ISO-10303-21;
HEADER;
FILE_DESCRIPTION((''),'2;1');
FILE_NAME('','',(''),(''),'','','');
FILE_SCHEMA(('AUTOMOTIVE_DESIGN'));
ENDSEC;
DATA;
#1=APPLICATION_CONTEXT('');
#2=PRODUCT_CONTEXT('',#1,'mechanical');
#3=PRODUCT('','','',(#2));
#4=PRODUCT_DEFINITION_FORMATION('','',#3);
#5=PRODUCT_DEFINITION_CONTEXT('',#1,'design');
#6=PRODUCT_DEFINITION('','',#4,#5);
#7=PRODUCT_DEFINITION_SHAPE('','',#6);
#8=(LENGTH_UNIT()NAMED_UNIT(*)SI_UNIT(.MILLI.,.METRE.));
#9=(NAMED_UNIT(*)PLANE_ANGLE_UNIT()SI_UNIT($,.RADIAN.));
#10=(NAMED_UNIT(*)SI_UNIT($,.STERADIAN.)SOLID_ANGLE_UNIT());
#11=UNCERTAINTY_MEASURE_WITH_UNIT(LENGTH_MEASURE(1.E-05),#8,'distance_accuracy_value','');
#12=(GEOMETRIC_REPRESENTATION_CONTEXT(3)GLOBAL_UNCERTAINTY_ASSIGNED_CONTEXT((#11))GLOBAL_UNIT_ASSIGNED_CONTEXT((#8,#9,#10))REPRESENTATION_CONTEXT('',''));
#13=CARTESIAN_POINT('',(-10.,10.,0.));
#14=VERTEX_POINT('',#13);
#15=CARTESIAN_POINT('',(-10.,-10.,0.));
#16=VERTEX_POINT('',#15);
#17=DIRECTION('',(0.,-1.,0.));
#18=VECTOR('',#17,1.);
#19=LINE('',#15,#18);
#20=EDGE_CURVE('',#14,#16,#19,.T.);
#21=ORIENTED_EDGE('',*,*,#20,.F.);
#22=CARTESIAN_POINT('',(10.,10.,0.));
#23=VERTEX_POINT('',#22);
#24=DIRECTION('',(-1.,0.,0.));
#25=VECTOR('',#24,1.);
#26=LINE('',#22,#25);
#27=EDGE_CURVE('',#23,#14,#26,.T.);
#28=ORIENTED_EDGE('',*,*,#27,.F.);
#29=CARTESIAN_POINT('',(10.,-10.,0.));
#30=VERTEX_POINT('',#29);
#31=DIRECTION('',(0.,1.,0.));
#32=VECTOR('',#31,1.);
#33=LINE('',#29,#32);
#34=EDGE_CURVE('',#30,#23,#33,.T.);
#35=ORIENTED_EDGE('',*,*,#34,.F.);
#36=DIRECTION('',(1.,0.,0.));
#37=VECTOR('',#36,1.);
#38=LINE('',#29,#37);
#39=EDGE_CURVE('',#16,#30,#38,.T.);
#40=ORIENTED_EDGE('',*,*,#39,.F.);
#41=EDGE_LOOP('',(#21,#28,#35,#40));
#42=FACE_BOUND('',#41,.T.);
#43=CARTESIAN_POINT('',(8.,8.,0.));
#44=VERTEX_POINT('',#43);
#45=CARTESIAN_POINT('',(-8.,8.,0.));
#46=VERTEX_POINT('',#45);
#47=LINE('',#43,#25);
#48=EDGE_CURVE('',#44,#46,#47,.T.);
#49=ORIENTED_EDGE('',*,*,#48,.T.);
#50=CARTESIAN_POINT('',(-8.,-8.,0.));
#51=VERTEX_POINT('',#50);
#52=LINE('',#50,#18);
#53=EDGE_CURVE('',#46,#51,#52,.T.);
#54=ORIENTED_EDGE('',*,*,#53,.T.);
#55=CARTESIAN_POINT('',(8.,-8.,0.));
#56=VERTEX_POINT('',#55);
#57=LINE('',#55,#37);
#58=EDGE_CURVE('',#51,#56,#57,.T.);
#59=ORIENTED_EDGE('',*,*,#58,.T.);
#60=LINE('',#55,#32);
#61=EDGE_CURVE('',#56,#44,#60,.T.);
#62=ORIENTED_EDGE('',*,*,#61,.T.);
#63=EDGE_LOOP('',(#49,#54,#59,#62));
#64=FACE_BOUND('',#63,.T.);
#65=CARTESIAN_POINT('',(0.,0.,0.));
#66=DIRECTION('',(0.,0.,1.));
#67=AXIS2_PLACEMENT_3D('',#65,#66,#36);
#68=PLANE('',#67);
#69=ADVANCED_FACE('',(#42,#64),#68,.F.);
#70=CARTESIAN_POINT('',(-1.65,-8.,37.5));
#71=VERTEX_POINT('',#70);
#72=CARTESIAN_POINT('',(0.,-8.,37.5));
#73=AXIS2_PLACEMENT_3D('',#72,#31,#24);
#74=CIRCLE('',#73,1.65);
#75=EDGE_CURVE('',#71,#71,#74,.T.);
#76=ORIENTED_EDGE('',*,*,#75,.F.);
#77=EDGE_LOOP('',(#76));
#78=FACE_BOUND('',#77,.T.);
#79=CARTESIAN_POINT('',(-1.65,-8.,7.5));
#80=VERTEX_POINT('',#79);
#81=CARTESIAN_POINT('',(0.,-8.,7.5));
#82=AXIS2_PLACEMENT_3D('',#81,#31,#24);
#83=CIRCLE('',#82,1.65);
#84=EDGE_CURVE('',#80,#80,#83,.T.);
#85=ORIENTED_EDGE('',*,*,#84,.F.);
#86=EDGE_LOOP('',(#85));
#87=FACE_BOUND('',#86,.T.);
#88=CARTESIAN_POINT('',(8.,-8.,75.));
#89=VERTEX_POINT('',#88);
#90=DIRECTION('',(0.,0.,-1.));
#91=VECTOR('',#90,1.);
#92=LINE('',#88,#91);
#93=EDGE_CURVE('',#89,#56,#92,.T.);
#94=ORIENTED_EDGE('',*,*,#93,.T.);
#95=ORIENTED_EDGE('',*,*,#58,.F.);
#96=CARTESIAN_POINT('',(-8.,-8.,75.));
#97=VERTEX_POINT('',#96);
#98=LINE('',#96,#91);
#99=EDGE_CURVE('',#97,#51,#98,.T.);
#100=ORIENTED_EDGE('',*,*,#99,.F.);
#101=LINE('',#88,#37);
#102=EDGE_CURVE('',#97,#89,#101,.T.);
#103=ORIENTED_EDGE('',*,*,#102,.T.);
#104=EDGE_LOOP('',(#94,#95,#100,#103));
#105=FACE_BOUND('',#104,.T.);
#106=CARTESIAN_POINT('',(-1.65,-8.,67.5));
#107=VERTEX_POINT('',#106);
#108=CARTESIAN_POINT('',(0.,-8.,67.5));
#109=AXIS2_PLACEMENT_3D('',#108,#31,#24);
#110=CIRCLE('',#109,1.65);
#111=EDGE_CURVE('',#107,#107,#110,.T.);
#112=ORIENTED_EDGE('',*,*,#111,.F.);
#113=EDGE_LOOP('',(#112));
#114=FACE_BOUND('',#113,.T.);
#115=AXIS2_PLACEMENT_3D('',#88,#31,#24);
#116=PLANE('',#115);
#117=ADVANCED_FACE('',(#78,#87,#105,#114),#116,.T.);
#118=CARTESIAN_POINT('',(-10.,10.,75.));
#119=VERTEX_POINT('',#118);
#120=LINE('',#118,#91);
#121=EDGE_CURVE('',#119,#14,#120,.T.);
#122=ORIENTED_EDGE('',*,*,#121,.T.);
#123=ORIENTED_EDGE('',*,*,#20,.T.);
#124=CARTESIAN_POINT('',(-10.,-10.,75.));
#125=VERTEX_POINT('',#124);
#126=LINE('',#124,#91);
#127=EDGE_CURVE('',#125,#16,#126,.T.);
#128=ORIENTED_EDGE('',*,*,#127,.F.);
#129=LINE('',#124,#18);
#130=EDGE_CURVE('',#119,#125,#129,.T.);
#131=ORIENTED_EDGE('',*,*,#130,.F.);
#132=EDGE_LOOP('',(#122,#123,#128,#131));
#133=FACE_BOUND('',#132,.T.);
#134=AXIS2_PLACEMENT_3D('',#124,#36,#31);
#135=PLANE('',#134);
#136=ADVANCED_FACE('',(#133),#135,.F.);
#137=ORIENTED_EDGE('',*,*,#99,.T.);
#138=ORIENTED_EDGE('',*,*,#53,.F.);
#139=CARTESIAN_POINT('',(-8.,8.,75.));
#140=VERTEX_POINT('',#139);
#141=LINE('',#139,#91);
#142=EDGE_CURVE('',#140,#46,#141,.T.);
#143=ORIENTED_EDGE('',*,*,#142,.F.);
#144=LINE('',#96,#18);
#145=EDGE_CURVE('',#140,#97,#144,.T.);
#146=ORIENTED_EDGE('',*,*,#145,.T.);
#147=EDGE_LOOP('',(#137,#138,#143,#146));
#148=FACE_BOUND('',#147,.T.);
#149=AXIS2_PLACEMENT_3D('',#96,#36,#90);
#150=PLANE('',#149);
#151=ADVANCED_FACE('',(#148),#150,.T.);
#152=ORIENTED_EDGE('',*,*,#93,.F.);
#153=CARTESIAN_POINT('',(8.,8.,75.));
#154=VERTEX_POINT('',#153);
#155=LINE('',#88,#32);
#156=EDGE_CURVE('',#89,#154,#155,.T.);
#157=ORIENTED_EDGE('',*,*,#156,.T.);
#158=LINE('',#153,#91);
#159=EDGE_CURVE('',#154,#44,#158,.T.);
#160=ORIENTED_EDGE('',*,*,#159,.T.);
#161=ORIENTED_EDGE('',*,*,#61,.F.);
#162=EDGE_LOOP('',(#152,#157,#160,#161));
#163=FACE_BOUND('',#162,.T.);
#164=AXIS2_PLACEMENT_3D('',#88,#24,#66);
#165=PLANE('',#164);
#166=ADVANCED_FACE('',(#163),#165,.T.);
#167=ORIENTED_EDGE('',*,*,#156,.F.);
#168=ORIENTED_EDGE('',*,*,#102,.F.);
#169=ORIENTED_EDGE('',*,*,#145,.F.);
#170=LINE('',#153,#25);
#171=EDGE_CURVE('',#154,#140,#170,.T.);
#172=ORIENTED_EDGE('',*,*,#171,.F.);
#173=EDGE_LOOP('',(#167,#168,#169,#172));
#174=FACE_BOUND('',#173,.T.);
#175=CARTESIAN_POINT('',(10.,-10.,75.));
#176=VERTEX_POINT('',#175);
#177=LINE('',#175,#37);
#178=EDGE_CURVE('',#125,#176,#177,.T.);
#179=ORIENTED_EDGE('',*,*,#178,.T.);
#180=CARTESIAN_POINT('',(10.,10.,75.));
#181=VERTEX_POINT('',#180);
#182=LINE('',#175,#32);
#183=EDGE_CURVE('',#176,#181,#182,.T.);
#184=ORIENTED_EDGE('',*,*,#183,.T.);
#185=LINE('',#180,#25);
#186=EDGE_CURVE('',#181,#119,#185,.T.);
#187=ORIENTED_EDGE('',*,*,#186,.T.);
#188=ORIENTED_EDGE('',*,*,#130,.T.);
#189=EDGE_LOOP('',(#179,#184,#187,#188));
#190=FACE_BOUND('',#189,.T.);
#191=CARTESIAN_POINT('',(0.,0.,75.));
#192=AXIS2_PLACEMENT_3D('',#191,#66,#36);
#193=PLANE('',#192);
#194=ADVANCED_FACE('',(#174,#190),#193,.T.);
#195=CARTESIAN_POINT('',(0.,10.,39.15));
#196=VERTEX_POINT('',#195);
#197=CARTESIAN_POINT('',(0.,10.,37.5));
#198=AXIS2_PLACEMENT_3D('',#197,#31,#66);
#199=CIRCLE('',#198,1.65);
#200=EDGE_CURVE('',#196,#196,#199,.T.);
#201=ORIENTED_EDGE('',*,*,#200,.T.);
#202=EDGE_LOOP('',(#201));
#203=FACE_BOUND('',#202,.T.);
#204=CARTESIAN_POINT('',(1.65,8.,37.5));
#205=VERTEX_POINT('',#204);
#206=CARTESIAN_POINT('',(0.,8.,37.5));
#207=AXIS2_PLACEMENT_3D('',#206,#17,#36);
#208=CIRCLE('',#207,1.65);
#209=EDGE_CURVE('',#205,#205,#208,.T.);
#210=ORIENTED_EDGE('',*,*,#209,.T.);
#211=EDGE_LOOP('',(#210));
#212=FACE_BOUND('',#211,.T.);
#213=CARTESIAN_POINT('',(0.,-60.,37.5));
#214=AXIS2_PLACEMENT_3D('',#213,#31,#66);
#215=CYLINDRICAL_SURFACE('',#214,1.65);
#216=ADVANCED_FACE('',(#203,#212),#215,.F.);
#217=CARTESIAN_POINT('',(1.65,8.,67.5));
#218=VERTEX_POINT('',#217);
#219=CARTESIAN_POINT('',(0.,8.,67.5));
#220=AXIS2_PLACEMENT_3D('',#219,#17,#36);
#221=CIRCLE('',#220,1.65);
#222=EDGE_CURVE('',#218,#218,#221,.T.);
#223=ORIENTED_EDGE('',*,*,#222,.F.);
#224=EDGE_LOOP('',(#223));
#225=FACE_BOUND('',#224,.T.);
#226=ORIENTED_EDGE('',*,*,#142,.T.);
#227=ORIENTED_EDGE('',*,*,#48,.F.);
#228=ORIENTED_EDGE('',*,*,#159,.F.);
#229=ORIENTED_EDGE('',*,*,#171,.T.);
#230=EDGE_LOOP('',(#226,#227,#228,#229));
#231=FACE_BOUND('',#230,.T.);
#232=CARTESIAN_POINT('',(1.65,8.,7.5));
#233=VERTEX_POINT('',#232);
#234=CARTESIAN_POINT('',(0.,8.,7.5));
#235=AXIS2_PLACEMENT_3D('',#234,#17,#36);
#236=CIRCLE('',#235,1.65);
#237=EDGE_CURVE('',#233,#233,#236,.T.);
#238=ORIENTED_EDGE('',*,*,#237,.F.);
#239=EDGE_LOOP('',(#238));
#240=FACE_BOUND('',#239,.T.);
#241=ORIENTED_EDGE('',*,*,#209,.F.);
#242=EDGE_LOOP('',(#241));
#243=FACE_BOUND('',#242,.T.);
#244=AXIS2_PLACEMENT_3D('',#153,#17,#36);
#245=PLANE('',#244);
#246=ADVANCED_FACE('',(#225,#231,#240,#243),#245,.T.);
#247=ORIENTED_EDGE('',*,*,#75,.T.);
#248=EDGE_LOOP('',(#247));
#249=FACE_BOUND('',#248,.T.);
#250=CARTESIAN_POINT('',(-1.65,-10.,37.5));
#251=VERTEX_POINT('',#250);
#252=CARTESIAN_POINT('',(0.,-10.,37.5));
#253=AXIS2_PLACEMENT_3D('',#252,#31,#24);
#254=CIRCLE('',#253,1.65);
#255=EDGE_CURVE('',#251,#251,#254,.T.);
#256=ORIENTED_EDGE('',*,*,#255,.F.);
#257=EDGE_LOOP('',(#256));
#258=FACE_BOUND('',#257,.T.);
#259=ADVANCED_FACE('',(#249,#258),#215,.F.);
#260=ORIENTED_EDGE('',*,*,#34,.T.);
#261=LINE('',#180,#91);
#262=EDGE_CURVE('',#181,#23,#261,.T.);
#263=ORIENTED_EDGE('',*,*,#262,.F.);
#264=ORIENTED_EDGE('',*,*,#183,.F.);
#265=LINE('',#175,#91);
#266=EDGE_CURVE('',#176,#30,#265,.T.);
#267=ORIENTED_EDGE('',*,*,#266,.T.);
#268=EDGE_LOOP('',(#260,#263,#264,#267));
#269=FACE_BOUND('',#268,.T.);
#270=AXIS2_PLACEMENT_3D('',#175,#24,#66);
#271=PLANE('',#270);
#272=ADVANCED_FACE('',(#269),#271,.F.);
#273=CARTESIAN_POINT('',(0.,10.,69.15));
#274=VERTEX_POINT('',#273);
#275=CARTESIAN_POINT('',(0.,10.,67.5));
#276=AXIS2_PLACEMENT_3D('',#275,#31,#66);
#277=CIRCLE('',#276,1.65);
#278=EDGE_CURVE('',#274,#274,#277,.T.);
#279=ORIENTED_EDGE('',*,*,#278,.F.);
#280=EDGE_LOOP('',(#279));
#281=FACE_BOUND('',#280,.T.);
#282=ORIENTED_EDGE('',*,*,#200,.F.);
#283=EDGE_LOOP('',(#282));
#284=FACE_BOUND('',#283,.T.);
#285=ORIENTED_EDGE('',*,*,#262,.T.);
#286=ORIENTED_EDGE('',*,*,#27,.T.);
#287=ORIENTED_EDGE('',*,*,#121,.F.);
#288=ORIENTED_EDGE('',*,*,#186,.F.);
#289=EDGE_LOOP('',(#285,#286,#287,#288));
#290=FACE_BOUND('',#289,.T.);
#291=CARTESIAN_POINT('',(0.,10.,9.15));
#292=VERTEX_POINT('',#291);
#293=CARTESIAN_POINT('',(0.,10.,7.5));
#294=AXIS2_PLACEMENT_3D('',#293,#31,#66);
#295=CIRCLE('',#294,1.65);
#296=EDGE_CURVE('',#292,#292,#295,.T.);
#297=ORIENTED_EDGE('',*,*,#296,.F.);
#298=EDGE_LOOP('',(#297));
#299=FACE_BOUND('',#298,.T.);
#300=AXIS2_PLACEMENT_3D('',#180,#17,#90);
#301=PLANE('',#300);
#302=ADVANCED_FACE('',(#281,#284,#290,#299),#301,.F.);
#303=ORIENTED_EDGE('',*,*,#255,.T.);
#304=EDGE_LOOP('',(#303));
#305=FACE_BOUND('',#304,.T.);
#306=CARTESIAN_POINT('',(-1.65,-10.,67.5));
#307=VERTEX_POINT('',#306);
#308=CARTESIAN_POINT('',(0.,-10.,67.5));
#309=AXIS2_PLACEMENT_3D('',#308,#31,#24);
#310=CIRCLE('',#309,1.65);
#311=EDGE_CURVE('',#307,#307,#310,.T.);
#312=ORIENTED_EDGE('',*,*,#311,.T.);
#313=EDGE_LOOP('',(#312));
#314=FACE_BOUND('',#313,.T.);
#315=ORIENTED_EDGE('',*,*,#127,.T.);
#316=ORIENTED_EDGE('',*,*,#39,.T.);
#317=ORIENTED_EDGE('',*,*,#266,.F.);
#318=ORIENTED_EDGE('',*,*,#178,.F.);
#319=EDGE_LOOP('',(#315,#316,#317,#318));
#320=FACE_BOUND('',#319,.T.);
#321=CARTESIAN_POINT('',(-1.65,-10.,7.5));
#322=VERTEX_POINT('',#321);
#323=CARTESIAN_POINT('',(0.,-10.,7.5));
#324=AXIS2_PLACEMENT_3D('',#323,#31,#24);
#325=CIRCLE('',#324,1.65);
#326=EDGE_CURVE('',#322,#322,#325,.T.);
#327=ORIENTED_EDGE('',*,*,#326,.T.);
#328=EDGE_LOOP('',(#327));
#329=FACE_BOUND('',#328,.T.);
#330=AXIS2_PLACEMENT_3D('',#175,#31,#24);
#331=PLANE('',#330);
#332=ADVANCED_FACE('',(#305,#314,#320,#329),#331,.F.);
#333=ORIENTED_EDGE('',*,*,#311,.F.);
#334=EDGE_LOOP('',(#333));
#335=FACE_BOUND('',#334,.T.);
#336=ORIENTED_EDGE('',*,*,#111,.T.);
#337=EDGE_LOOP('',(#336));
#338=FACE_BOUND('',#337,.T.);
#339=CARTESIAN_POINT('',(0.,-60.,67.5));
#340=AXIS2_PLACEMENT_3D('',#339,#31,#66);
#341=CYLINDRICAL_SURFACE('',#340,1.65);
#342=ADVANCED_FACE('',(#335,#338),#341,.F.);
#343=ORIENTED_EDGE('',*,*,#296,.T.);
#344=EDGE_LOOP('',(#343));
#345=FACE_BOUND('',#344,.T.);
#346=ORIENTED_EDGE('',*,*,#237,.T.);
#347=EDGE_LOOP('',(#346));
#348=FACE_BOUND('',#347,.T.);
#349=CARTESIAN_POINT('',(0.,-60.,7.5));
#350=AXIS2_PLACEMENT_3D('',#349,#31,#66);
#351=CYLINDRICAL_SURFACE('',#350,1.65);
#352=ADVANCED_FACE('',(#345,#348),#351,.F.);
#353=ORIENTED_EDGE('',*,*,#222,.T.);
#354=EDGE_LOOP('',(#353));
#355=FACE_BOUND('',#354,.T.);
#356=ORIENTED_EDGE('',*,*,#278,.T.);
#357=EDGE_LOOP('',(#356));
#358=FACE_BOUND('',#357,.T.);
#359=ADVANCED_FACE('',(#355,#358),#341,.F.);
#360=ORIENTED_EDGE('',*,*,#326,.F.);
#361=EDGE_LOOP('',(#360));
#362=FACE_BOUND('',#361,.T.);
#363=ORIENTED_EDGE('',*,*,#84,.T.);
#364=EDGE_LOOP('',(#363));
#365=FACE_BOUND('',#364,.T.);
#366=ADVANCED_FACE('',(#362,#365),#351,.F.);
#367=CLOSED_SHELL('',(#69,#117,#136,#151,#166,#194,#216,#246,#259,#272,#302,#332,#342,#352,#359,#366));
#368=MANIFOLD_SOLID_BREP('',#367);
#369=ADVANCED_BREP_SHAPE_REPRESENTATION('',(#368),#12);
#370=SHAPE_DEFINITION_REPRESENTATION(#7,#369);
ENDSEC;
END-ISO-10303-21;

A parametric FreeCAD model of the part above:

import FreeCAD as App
import Part
import Sketcher
from FreeCAD import Vector

doc = App.newDocument("Part")
params = doc.addObject("Spreadsheet::Sheet", "Params")
for row, (alias, value) in enumerate([
    ("sketch1_width", "20 mm"),
    ("sketch1_width2", "16 mm"),
    ("pad1_length", "75 mm"),
    ("sketch2_diameter", "3.3 mm"),
    ("pocket1_length", "70 mm"),
], start=1):
    params.set(f"A{row}", alias)
    params.set(f"B{row}", "=" + value)
    params.setAlias(f"B{row}", alias)

body = doc.addObject("PartDesign::Body", "Body")

# Sketch on XY plane
sketch1 = body.newObject("Sketcher::SketchObject", "Sketch")
sketch1.AttachmentSupport = (doc.getObject("XY_Plane"), [""])
sketch1.MapMode = "FlatFace"
sketch1.addGeometry([
    Part.LineSegment(Vector(-10, 10, 0), Vector(-10, -10, 0)),  # 0
    Part.LineSegment(Vector(-10, -10, 0), Vector(10, -10, 0)),  # 1
    Part.LineSegment(Vector(10, -10, 0), Vector(10, 10, 0)),  # 2
    Part.LineSegment(Vector(10, 10, 0), Vector(-10, 10, 0)),  # 3
    Part.LineSegment(Vector(8, -8, 0), Vector(-8, -8, 0)),  # 4
    Part.LineSegment(Vector(-8, -8, 0), Vector(-8, 8, 0)),  # 5
    Part.LineSegment(Vector(-8, 8, 0), Vector(8, 8, 0)),  # 6
    Part.LineSegment(Vector(8, 8, 0), Vector(8, -8, 0)),  # 7
], False)
sketch1.addConstraint([
    Sketcher.Constraint("Coincident", 0, 2, 1, 1),
    Sketcher.Constraint("Coincident", 1, 2, 2, 1),
    Sketcher.Constraint("Coincident", 2, 2, 3, 1),
    Sketcher.Constraint("Coincident", 3, 2, 0, 1),
    Sketcher.Constraint("Coincident", 4, 2, 5, 1),
    Sketcher.Constraint("Coincident", 5, 2, 6, 1),
    Sketcher.Constraint("Coincident", 6, 2, 7, 1),
    Sketcher.Constraint("Coincident", 7, 2, 4, 1),
    Sketcher.Constraint("Vertical", 0),
    Sketcher.Constraint("Horizontal", 1),
    Sketcher.Constraint("Vertical", 2),
    Sketcher.Constraint("Horizontal", 3),
    Sketcher.Constraint("Horizontal", 4),
    Sketcher.Constraint("Vertical", 5),
    Sketcher.Constraint("Horizontal", 6),
    Sketcher.Constraint("Vertical", 7),
    Sketcher.Constraint("Symmetric", 0, 2, 2, 2, -1, 1),
    Sketcher.Constraint("Symmetric", 4, 2, 6, 2, -1, 1),
    Sketcher.Constraint("Equal", 3, 0),
    Sketcher.Constraint("Equal", 6, 5),
    Sketcher.Constraint("DistanceX", 1, 1, 1, 2, 20.0),
    Sketcher.Constraint("DistanceX", 4, 2, 4, 1, 16.0),
])
sketch1.setExpression("Constraints[20]", "Params.sketch1_width")
sketch1.setExpression("Constraints[21]", "Params.sketch1_width2")
pad1 = body.newObject("PartDesign::Pad", "Pad")
pad1.Profile = sketch1
pad1.setExpression("Length", "Params.pad1_length")

# Sketch on XZ plane
sketch2 = body.newObject("Sketcher::SketchObject", "Sketch001")
sketch2.AttachmentSupport = (doc.getObject("XZ_Plane"), [""])
sketch2.MapMode = "FlatFace"
sketch2.AttachmentOffset = App.Placement(Vector(0, 0, -10), App.Rotation())
sketch2.addGeometry([
    Part.Circle(Vector(0, 37.5, 0), Vector(0, 0, 1), 1.6),
    Part.Circle(Vector(0, 7.5, 0), Vector(0, 0, 1), 1.6),
    Part.Circle(Vector(0, 67.5, 0), Vector(0, 0, 1), 1.6),
], False)
sketch2.addConstraint([
    Sketcher.Constraint("Equal", 0, 1),
    Sketcher.Constraint("Equal", 1, 2),
    Sketcher.Constraint("PointOnObject", 0, 3, -2),
    Sketcher.Constraint("PointOnObject", 1, 3, -2),
    Sketcher.Constraint("PointOnObject", 2, 3, -2),
    Sketcher.Constraint("Diameter", 0, 3.3),
    Sketcher.Constraint("DistanceY", 1, 3, 0, 3, 30.0),
    Sketcher.Constraint("DistanceY", 0, 3, 2, 3, 30.0),
    Sketcher.Constraint("DistanceY", -1, 1, 0, 3, 37.5),
])
sketch2.setExpression("Constraints[5]", "Params.sketch2_diameter")
pocket1 = body.newObject("PartDesign::Pocket", "Pocket")
pocket1.Profile = sketch2
pocket1.setExpression("Length", "Params.pocket1_length")
pocket1.Reversed = True

doc.recompute()
